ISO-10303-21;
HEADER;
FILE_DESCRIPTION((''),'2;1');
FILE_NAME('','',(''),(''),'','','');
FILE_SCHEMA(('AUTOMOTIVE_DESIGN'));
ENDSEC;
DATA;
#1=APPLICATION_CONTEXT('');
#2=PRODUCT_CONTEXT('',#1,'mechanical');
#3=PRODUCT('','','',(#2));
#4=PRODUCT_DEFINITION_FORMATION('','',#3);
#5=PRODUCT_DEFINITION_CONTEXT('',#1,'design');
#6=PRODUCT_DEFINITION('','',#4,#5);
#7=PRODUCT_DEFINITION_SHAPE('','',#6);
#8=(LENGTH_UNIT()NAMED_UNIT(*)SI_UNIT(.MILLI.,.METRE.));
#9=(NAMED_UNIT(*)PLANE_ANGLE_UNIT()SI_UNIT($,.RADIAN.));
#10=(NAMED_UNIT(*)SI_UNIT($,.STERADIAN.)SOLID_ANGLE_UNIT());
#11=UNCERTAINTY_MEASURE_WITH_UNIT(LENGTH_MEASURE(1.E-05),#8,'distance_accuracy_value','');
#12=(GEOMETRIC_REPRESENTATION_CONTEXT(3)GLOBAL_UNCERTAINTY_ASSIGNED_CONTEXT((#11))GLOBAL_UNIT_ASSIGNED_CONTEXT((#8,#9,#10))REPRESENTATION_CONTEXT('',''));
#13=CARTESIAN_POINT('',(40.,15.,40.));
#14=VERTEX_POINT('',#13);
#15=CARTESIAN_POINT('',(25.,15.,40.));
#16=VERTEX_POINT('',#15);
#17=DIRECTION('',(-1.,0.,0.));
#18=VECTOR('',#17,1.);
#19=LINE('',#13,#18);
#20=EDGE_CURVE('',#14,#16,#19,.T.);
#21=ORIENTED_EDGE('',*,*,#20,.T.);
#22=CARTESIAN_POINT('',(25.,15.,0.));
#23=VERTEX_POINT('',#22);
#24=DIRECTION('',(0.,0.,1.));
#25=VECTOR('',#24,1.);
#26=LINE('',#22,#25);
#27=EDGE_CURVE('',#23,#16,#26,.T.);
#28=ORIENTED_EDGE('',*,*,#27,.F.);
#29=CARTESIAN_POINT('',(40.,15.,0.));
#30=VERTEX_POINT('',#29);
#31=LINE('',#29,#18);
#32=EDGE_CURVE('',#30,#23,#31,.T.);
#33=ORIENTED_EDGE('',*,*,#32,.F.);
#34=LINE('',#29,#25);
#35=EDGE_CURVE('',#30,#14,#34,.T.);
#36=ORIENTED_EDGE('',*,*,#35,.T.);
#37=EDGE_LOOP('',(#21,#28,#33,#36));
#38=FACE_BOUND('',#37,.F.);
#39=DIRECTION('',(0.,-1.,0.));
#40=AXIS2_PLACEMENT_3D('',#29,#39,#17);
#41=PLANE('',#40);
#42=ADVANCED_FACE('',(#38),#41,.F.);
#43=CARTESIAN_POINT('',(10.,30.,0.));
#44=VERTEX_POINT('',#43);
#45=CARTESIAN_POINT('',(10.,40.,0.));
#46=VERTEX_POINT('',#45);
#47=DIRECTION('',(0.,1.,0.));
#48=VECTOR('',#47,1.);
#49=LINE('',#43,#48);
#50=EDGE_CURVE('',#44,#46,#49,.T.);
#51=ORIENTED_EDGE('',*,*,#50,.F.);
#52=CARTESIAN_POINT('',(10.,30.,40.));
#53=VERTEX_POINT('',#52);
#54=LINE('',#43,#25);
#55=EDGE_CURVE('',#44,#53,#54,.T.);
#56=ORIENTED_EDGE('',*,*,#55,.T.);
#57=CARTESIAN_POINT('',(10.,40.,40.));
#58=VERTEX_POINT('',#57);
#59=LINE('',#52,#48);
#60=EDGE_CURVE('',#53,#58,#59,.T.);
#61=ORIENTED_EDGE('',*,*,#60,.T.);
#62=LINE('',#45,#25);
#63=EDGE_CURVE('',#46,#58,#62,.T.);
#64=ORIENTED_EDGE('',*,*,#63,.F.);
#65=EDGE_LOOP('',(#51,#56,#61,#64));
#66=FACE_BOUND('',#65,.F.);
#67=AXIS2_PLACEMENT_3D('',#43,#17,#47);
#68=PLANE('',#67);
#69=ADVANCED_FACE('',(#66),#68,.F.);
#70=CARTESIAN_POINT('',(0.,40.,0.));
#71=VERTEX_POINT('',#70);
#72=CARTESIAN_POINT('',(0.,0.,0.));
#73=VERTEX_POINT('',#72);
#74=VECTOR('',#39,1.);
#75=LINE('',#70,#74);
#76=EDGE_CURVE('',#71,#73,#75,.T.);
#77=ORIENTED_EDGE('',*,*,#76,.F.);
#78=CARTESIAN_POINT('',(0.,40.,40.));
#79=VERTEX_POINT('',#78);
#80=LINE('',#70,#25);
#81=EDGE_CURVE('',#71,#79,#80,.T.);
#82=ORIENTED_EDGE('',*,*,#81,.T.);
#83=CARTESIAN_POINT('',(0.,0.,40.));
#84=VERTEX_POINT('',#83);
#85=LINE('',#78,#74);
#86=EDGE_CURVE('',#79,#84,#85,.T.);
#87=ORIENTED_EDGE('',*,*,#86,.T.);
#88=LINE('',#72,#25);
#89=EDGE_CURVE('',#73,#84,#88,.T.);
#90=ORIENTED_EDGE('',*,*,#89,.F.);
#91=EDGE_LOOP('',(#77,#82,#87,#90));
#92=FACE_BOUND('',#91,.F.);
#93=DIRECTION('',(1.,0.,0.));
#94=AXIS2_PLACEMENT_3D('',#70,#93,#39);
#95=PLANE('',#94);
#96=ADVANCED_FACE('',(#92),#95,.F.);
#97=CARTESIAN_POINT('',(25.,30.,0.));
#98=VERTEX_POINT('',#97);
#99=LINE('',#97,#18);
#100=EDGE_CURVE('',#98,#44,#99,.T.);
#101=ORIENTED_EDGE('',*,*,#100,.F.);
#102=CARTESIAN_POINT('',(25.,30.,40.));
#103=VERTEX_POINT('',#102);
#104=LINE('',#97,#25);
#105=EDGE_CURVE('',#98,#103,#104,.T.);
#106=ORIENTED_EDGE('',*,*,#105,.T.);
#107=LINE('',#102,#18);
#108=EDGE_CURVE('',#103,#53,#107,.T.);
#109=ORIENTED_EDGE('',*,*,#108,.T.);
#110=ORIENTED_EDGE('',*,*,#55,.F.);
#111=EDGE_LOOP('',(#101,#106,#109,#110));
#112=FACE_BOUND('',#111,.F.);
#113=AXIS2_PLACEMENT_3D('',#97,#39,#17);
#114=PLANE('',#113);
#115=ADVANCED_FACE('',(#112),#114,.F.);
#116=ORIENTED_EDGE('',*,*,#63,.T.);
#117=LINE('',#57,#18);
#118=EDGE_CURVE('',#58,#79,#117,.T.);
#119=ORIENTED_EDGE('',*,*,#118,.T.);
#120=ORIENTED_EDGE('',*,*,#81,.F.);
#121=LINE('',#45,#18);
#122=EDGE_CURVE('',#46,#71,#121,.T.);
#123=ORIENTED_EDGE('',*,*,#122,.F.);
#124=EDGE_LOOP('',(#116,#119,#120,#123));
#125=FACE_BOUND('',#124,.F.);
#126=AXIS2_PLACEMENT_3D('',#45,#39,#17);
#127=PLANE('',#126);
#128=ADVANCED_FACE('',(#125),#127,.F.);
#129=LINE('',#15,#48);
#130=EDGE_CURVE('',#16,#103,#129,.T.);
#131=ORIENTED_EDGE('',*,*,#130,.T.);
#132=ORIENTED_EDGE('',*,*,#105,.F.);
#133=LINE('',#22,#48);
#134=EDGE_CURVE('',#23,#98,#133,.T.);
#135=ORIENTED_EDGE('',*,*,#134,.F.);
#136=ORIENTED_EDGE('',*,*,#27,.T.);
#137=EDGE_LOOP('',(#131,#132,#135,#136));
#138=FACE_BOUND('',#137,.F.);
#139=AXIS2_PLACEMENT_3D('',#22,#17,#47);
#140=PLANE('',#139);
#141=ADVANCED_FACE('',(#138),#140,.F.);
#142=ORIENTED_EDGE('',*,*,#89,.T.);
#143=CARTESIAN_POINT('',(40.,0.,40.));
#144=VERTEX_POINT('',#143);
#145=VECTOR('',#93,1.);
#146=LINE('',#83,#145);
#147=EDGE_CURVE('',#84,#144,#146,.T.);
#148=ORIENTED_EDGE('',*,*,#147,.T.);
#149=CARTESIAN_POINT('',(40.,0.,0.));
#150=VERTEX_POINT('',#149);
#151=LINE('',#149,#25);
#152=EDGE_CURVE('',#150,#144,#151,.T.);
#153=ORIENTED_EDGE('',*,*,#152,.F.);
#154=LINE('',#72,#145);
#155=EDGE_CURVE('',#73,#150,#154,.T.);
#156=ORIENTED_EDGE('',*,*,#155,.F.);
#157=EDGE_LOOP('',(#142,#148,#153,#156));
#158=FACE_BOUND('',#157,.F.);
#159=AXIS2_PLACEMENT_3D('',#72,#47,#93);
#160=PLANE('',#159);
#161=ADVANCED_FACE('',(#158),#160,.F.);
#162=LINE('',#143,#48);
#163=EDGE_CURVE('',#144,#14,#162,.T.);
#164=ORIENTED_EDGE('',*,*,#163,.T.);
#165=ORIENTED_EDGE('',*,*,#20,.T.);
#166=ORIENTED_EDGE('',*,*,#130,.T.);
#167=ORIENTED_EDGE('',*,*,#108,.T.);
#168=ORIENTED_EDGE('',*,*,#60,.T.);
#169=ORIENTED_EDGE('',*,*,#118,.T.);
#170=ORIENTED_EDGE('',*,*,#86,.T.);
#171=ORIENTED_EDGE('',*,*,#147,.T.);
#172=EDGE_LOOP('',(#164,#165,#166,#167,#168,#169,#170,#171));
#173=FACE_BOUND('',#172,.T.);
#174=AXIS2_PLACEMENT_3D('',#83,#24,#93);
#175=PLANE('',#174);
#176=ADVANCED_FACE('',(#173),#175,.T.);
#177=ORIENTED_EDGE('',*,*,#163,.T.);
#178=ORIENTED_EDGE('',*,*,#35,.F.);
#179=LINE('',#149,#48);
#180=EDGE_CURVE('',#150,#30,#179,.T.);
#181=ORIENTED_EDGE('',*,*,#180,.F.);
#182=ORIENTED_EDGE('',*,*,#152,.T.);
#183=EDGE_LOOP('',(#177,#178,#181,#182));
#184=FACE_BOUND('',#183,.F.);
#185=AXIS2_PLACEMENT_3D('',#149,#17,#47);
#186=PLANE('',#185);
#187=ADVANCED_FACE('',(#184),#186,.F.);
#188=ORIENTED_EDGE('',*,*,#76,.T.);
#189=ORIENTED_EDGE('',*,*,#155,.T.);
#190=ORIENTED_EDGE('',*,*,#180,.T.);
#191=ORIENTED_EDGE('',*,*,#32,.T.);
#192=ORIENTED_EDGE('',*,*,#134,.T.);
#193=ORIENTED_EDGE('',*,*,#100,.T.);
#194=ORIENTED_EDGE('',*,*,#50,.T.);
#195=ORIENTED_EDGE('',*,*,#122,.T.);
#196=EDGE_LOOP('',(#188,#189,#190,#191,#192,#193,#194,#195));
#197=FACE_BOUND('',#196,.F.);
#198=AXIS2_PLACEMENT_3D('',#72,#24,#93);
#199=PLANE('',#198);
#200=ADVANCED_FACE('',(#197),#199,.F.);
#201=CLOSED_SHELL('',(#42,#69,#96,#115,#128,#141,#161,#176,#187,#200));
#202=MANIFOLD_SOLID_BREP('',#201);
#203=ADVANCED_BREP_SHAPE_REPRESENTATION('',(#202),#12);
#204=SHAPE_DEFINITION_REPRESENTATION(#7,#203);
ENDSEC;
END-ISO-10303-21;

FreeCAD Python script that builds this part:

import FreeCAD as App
import Part
import Sketcher

V = App.Vector

doc = App.newDocument("Part")
body = doc.addObject("PartDesign::Body", "Body")

sketch1 = doc.addObject("Sketcher::SketchObject", "Sketch")
body.addObject(sketch1)
sketch1.AttachmentSupport = (doc.XY_Plane, [""])
sketch1.MapMode = "FlatFace"
sketch1.addGeometry(Part.LineSegment(V(0, 40, 0), V(0, 0, 0)), False)
sketch1.addGeometry(Part.LineSegment(V(0, 0, 0), V(40, 0, 0)), False)
sketch1.addGeometry(Part.LineSegment(V(40, 0, 0), V(40, 15, 0)), False)
sketch1.addGeometry(Part.LineSegment(V(40, 15, 0), V(25, 15, 0)), False)
sketch1.addGeometry(Part.LineSegment(V(25, 15, 0), V(25, 30, 0)), False)
sketch1.addGeometry(Part.LineSegment(V(25, 30, 0), V(10, 30, 0)), False)
sketch1.addGeometry(Part.LineSegment(V(10, 30, 0), V(10, 40, 0)), False)
sketch1.addGeometry(Part.LineSegment(V(10, 40, 0), V(0, 40, 0)), False)
sketch1.addConstraint(Sketcher.Constraint("Coincident", 0, 2, 1, 1))
sketch1.addConstraint(Sketcher.Constraint("Coincident", 1, 2, 2, 1))
sketch1.addConstraint(Sketcher.Constraint("Coincident", 2, 2, 3, 1))
sketch1.addConstraint(Sketcher.Constraint("Coincident", 3, 2, 4, 1))
sketch1.addConstraint(Sketcher.Constraint("Coincident", 4, 2, 5, 1))
sketch1.addConstraint(Sketcher.Constraint("Coincident", 5, 2, 6, 1))
sketch1.addConstraint(Sketcher.Constraint("Coincident", 6, 2, 7, 1))
sketch1.addConstraint(Sketcher.Constraint("Coincident", 7, 2, 0, 1))
sketch1.addConstraint(Sketcher.Constraint("Vertical", 0))
sketch1.addConstraint(Sketcher.Constraint("Horizontal", 1))
sketch1.addConstraint(Sketcher.Constraint("Vertical", 2))
sketch1.addConstraint(Sketcher.Constraint("Horizontal", 3))
sketch1.addConstraint(Sketcher.Constraint("Vertical", 4))
sketch1.addConstraint(Sketcher.Constraint("Horizontal", 5))
sketch1.addConstraint(Sketcher.Constraint("Vertical", 6))
sketch1.addConstraint(Sketcher.Constraint("Horizontal", 7))
sketch1.addConstraint(Sketcher.Constraint("Coincident", 0, 2, -1, 1))
sketch1.addConstraint(Sketcher.Constraint("Equal", 3, 5))
sketch1.addConstraint(Sketcher.Constraint("Equal", 1, 0))
sketch1.addConstraint(Sketcher.Constraint("Equal", 5, 2))
sketch1.addConstraint(Sketcher.Constraint("Equal", 2, 4))
sketch1.addConstraint(Sketcher.Constraint("DistanceX", 1, 1, 1, 2, 40.0))
sketch1.addConstraint(Sketcher.Constraint("DistanceX", 3, 2, 3, 1, 15.0))
pad1 = doc.addObject("PartDesign::Pad", "Pad")
body.addObject(pad1)
pad1.Profile = sketch1
pad1.Length = 40

doc.recompute()
